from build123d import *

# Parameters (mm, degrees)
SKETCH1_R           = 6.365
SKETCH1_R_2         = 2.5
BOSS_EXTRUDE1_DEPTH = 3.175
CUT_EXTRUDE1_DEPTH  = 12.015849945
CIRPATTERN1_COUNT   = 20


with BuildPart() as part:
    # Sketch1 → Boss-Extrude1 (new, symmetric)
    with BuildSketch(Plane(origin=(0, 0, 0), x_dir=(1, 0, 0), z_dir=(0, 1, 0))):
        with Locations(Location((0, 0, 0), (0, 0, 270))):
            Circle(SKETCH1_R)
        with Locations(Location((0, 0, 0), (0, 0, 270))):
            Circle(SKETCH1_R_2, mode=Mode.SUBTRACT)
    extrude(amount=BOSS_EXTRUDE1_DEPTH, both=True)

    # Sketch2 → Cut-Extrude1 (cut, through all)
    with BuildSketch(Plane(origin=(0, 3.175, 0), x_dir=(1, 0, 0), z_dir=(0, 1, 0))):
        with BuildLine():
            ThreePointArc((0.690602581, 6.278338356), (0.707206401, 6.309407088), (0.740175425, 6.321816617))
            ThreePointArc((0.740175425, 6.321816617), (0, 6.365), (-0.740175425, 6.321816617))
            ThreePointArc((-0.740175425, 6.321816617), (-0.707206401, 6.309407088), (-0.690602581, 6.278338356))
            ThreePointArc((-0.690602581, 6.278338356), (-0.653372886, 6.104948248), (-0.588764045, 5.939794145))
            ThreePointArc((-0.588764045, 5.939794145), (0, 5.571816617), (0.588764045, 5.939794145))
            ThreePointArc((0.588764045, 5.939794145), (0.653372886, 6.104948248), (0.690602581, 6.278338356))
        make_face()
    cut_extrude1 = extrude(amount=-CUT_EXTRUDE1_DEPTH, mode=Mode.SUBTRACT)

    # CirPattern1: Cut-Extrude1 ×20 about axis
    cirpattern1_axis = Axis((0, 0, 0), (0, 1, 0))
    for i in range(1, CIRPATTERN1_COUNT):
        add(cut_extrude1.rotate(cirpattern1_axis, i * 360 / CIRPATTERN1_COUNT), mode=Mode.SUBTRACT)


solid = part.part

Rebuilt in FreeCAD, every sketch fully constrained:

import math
import FreeCAD as App
import Part
import Sketcher
from FreeCAD import Vector
Q = App.Units.Quantity

doc = App.newDocument("Part")
body = doc.addObject("PartDesign::Body", "Body")

# Sketch on XZ plane
sketch1 = body.newObject("Sketcher::SketchObject", "Sketch")
sketch1.AttachmentSupport = (doc.getObject("XZ_Plane"), [""])
sketch1.MapMode = "FlatFace"
sketch1.addGeometry(Part.Circle(Vector(0, 0, 0), Vector(0, 0, 1), 6.4), False)
sketch1.addGeometry(Part.Circle(Vector(0, 0, 0), Vector(0, 0, 1), 2.5), False)
sketch1.addConstraint(Sketcher.Constraint("Coincident", 0, 3, -1, 1))
sketch1.addConstraint(Sketcher.Constraint("Coincident", 1, 3, -1, 1))
sketch1.addConstraint(Sketcher.Constraint("Diameter", 1, Q("5 mm")))
sketch1.addConstraint(Sketcher.Constraint("Diameter", 0, Q("12.73 mm")))
pad1 = body.newObject("PartDesign::Pad", "Pad")
pad1.Profile = sketch1
pad1.Length = 6.35
pad1.Midplane = True

# Sketch on XZ plane
sketch2 = body.newObject("Sketcher::SketchObject", "Sketch001")
sketch2.AttachmentSupport = (doc.getObject("XZ_Plane"), [""])
sketch2.MapMode = "FlatFace"
sketch2.AttachmentOffset = App.Placement(Vector(0, 0, -3.175), App.Rotation())
sketch2.addGeometry(Part.ArcOfCircle(Part.Circle(Vector(0.74, -6.272, 0), Vector(0, 0, 1), 0.05), math.radians(-173), math.radians(-90)), False)
sketch2.addGeometry(Part.ArcOfCircle(Part.Circle(Vector(0, 0, 0), Vector(0, 0, 1), 6.365), math.radians(-96.68), math.radians(-83.32)), False)
sketch2.addGeometry(Part.ArcOfCircle(Part.Circle(Vector(-0.74, -6.272, 0), Vector(0, 0, 1), 0.05), math.radians(-90), math.radians(-7)), False)
sketch2.addGeometry(Part.ArcOfCircle(Part.Circle(Vector(0.4, -6.422, 0), Vector(0, 0, 1), 1.1), math.radians(154.01), math.radians(172.51)), False)
sketch2.addGeometry(Part.ArcOfCircle(Part.Circle(Vector(0, -6.227, 0), Vector(0, 0, 1), 0.655), math.radians(26), math.radians(154)), False)
sketch2.addGeometry(Part.ArcOfCircle(Part.Circle(Vector(-0.4, -6.422, 0), Vector(0, 0, 1), 1.1), math.radians(7.49), math.radians(25.99)), False)
sketch2.addConstraint(Sketcher.Constraint("Coincident", 0, 2, 1, 2))
sketch2.addConstraint(Sketcher.Constraint("Coincident", 1, 1, 2, 1))
sketch2.addConstraint(Sketcher.Constraint("Tangent", 2, 2, 3, 2))
sketch2.addConstraint(Sketcher.Constraint("Tangent", 3, 1, 4, 2))
sketch2.addConstraint(Sketcher.Constraint("Tangent", 4, 1, 5, 2))
sketch2.addConstraint(Sketcher.Constraint("Tangent", 5, 1, 0, 1))
sketch2.addConstraint(Sketcher.Constraint("Coincident", 1, 3, -1, 1))
sketch2.addConstraint(Sketcher.Constraint("Equal", 0, 2))
sketch2.addConstraint(Sketcher.Constraint("Equal", 3, 5))
sketch2.addConstraint(Sketcher.Constraint("Symmetric", 0, 3, 2, 3, -2))
sketch2.addConstraint(Sketcher.Constraint("PointOnObject", 4, 3, -2))
sketch2.addConstraint(Sketcher.Constraint("Vertical", 2, 3, 1, 1))
sketch2.addConstraint(Sketcher.Constraint("Radius", 3, Q("1.1 mm")))
sketch2.addConstraint(Sketcher.Constraint("Radius", 0, Q("0.05 mm")))
sketch2.addConstraint(Sketcher.Constraint("Radius", 1, Q("6.365 mm")))
sketch2.addConstraint(Sketcher.Constraint("Radius", 4, Q("0.655 mm")))
sketch2.addConstraint(Sketcher.Constraint("DistanceX", -1, 1, 3, 3, Q("0.4 mm")))
sketch2.addConstraint(Sketcher.Constraint("DistanceY", 3, 3, 0, 2, Q("0.1 mm")))
pocket1 = body.newObject("PartDesign::Pocket", "Pocket")
pocket1.Profile = sketch2
pocket1.Type = "ThroughAll"
pocket1.Reversed = True
doc.recompute()

polarpattern = body.newObject("PartDesign::PolarPattern", "PolarPattern")
polarpattern.Originals = [pocket1]
polarpattern.Axis = (doc.getObject("Y_Axis"), [""])
polarpattern.Angle = 360
polarpattern.Occurrences = 20
body.Tip = polarpattern

doc.recompute()
